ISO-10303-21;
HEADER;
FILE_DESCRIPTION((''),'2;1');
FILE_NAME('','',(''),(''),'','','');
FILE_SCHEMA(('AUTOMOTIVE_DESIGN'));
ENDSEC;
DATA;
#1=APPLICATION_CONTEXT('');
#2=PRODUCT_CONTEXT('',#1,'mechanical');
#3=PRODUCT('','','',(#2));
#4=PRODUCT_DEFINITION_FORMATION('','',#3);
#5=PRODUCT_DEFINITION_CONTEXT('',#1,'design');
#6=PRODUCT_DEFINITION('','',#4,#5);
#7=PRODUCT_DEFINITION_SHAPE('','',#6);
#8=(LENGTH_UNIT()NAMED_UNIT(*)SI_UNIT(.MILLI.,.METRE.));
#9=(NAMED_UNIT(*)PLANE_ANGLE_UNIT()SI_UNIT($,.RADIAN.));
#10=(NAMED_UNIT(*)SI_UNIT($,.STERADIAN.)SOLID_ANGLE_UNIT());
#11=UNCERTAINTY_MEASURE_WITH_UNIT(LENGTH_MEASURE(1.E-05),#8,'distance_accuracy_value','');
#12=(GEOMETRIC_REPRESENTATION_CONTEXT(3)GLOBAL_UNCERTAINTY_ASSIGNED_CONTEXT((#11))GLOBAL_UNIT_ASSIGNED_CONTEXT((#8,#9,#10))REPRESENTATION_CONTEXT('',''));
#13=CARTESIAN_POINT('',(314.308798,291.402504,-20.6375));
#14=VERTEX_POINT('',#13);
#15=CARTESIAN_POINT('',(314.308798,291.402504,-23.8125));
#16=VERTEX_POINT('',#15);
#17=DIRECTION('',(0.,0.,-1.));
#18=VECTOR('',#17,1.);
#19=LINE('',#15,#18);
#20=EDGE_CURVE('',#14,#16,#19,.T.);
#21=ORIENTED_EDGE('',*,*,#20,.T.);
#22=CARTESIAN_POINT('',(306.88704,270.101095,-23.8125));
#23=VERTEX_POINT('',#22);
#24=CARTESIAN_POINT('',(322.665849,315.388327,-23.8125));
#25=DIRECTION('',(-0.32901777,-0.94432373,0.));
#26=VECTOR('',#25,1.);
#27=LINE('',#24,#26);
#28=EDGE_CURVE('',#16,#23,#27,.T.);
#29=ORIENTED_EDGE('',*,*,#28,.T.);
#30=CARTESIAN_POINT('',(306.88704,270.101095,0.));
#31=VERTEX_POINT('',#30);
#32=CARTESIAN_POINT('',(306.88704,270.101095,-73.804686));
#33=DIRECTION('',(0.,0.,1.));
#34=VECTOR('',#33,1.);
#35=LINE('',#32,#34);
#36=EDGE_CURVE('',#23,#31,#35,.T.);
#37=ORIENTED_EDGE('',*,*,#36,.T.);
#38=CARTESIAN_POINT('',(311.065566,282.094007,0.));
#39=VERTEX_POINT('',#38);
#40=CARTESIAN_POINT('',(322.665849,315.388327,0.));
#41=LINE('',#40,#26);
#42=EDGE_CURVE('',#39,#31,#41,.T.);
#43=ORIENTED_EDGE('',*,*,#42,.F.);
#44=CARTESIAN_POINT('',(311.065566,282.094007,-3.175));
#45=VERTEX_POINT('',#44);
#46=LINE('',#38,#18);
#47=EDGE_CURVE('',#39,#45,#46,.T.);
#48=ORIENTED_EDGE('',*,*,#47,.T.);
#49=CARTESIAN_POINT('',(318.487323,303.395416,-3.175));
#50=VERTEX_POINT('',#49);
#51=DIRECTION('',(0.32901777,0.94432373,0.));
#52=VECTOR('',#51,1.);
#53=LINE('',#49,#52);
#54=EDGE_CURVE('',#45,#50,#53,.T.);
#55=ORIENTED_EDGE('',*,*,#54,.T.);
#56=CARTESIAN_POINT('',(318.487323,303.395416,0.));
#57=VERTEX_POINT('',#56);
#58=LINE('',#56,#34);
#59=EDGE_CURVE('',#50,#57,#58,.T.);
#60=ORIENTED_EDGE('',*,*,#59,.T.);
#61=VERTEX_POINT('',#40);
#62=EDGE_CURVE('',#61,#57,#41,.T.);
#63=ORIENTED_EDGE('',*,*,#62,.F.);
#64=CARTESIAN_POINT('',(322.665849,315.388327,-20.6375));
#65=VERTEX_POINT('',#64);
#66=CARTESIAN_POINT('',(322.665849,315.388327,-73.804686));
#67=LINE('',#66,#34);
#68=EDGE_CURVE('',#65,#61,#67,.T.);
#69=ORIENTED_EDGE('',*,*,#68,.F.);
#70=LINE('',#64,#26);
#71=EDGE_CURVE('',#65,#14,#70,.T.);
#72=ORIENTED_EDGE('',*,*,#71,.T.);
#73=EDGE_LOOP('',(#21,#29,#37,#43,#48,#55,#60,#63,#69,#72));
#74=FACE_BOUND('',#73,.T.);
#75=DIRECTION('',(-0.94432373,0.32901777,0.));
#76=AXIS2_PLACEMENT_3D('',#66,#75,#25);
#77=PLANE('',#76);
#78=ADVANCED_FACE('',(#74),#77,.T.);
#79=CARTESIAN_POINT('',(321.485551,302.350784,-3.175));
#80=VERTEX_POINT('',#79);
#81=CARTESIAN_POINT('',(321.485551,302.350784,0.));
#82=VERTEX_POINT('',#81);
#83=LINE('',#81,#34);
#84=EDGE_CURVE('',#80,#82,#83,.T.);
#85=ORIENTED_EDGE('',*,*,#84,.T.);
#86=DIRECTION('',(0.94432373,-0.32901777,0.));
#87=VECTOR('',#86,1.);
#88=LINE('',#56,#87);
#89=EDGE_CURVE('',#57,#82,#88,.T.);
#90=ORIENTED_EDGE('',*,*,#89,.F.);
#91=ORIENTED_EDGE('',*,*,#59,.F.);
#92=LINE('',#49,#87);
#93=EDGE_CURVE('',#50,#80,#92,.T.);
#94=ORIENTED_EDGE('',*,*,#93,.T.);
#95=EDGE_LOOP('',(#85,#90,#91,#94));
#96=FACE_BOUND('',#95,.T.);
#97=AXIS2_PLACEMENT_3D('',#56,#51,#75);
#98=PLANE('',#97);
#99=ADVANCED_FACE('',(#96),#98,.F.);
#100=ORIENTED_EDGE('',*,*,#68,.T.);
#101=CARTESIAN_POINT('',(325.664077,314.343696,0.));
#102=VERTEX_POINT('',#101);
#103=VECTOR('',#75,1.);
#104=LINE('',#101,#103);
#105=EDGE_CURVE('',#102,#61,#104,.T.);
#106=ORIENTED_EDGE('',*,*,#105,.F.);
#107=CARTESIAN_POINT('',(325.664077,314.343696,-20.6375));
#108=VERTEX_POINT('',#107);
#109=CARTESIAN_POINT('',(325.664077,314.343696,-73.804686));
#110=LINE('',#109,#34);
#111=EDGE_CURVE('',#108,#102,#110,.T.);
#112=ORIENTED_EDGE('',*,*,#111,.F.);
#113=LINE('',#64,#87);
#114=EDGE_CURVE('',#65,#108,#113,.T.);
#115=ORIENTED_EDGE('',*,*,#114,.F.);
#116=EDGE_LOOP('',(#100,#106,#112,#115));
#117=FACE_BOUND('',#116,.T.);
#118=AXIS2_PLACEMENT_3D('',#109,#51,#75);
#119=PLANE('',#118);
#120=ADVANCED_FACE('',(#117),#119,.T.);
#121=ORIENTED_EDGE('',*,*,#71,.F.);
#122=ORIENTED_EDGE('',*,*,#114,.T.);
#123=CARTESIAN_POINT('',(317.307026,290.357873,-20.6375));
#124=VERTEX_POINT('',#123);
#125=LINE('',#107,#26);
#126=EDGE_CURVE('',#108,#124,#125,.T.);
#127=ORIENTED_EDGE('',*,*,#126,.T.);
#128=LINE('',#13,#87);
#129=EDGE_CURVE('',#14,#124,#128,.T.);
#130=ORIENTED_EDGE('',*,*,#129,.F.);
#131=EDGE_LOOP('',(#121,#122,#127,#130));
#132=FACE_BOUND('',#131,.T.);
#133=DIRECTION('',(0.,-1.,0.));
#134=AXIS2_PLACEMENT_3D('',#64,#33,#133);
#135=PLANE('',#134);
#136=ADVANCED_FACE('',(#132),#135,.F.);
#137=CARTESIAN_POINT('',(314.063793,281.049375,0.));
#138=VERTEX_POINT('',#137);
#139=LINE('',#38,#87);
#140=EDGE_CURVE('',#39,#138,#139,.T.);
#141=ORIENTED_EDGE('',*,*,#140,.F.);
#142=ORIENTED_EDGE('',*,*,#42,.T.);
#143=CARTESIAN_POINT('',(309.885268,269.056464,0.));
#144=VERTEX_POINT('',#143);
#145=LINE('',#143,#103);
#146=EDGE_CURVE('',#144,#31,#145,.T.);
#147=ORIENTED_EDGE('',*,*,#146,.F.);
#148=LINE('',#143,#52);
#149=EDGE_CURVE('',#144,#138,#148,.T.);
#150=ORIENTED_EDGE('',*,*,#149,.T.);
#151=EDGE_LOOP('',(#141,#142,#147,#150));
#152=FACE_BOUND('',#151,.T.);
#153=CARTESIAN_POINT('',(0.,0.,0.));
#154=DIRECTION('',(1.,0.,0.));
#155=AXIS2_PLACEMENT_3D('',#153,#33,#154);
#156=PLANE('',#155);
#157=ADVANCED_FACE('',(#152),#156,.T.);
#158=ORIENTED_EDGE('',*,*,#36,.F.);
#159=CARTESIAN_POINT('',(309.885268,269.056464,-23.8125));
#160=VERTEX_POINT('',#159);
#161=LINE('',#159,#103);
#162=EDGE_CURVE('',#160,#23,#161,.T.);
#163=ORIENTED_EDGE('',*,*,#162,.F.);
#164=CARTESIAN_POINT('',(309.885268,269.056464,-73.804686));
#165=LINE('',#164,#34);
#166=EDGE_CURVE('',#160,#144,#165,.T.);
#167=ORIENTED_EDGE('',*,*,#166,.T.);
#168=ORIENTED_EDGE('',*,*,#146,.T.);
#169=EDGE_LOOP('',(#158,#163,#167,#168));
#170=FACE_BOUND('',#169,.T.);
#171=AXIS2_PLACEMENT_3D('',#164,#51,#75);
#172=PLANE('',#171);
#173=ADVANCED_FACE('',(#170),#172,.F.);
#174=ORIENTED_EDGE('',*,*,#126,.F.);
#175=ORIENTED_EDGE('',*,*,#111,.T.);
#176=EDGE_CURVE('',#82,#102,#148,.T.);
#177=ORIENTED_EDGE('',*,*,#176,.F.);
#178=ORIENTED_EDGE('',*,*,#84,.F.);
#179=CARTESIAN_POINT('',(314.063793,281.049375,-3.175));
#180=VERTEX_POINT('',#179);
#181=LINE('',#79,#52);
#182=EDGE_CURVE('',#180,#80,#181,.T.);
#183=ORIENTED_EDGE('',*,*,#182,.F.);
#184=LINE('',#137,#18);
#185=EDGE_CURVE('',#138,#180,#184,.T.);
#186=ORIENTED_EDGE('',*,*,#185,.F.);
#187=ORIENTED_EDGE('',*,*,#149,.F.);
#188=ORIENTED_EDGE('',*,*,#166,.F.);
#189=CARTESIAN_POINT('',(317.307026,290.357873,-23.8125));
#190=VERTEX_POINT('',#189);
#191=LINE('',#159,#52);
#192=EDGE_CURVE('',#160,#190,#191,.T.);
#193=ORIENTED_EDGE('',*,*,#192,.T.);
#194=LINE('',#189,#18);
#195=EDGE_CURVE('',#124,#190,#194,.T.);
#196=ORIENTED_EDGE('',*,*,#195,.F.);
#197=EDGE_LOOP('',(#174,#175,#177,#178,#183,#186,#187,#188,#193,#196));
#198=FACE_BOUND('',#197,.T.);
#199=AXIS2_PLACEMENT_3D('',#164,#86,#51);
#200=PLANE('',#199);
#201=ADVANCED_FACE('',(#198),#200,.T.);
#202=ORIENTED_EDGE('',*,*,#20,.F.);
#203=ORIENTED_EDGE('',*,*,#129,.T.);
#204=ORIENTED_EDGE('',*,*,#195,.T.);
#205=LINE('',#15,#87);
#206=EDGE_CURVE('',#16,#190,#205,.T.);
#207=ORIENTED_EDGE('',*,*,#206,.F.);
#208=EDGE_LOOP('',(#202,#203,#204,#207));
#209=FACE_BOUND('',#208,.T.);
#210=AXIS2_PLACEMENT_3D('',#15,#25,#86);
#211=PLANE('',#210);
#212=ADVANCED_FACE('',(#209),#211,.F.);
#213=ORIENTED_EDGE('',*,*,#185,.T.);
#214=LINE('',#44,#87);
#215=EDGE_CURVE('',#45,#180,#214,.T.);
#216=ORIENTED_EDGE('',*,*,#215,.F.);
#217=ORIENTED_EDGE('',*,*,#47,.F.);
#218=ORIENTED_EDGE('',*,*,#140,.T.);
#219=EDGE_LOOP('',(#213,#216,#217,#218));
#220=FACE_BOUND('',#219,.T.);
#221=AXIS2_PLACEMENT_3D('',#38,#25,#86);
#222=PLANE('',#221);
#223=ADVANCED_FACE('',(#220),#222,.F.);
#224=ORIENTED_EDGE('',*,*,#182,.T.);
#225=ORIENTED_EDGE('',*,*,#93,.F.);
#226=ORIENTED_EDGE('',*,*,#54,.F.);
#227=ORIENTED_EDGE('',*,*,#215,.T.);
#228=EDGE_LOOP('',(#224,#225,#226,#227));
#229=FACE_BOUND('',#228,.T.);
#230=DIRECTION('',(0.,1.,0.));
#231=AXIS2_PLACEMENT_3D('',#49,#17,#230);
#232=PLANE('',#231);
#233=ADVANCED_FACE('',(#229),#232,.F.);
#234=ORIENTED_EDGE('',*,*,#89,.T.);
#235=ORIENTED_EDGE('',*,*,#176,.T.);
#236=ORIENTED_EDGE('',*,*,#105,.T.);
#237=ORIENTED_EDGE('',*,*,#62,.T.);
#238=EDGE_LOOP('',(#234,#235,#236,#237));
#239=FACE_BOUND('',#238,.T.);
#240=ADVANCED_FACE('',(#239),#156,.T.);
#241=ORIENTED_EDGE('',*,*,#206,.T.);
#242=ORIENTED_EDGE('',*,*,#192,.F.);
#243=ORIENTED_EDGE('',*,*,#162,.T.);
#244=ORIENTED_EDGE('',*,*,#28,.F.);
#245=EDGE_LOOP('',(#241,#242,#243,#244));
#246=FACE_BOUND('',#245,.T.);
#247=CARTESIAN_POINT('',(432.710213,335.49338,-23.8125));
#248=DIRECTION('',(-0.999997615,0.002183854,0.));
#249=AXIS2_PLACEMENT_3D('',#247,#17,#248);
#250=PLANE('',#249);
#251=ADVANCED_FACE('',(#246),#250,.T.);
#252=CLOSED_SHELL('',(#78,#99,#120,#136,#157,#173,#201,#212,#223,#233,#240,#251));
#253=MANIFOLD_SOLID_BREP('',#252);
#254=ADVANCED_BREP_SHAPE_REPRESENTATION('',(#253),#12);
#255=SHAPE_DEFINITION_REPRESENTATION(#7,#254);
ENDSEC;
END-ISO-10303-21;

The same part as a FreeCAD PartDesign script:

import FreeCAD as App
import Part
import Sketcher
Q = App.Units.Quantity


def add_polygon(sketch, points):
    """Adds a closed chain of lines whose ends are joined by coincident constraints."""
    first, n = sketch.GeometryCount, len(points)
    for a, b in zip(points, points[1:] + points[:1]):
        sketch.addGeometry(Part.LineSegment(App.Vector(*a, 0), App.Vector(*b, 0)), False)
    for i in range(n):
        sketch.addConstraint(Sketcher.Constraint("Coincident", first + i, 2, first + (i + 1) % n, 1))

doc = App.newDocument("Part")
body = doc.addObject("PartDesign::Body", "Body")

sketch1 = doc.addObject("Sketcher::SketchObject", "Sketch")
body.addObject(sketch1)
sketch1.AttachmentSupport = (doc.XY_Plane, [""])
sketch1.MapMode = "FlatFace"
add_polygon(sketch1, [(322.665849, 315.388327), (306.88704, 270.101095), (309.885268, 269.056464), (325.664077, 314.343696)])
sketch1.addConstraint([
    Sketcher.Constraint("Perpendicular", 0, 1),
    Sketcher.Constraint("Perpendicular", 1, 2),
    Sketcher.Constraint("Perpendicular", 2, 3),
    Sketcher.Constraint("Distance", 1, Q("0.125 in")),
    Sketcher.Constraint("DistanceY", 0, 2, 2, 2, 44.2426),
    Sketcher.Constraint("DistanceX", -1, 1, 0, 2, 306.88704),
    Sketcher.Constraint("DistanceX", -1, 1, 3, 2, 322.665849),
    Sketcher.Constraint("DistanceY", -1, 1, 0, 2, 270.101095),
])
pad1 = doc.addObject("PartDesign::Pad", "Pad")
body.addObject(pad1)
pad1.Profile = sketch1
pad1.Length = Q("0.9375 in")
pad1.Reversed = True

sketch2 = doc.addObject("Sketcher::SketchObject", "Sketch001")
body.addObject(sketch2)
sketch2.Placement = App.Placement(App.Vector(192.743701, -67.155045, 0), App.Rotation(App.Vector(0, 0, -1), App.Vector(0.32901777, 0.94432373, 0), App.Vector(0.94432373, -0.32901777, 0), "ZXY"))
add_polygon(sketch2, [(20.6375, 403.991479), (20.6375, 378.591479), (23.8125, 378.591479), (23.8125, 403.991479)])
add_polygon(sketch2, [(0, 391.291479), (0, 368.734163), (3.175, 368.734163), (3.175, 391.291479)])
sketch2.addConstraint([
    Sketcher.Constraint("Vertical", 0),
    Sketcher.Constraint("Horizontal", 1),
    Sketcher.Constraint("Vertical", 2),
    Sketcher.Constraint("Horizontal", 3),
    Sketcher.Constraint("Vertical", 4),
    Sketcher.Constraint("Horizontal", 5),
    Sketcher.Constraint("Vertical", 6),
    Sketcher.Constraint("Horizontal", 7),
    Sketcher.Constraint("PointOnObject", 4, 2, -2),
    Sketcher.Constraint("Equal", 3, 5),
    Sketcher.Constraint("DistanceY", 0, 2, 0, 1, Q("1 in")),
    Sketcher.Constraint("DistanceY", 6, 2, 3, 2, Q("0.5 in")),
    Sketcher.Constraint("DistanceX", 1, 1, 1, 2, Q("0.125 in")),
    Sketcher.Constraint("DistanceX", -1, 1, 0, 2, Q("0.8125 in")),
    Sketcher.Constraint("DistanceY", 4, 2, 4, 1, 22.557316),
    Sketcher.Constraint("DistanceY", -1, 1, 0, 2, 378.591479),
])
pocket1 = doc.addObject("PartDesign::Pocket", "Pocket")
body.addObject(pocket1)
pocket1.Profile = sketch2
pocket1.Length = Q("0.125 in")

doc.recompute()
